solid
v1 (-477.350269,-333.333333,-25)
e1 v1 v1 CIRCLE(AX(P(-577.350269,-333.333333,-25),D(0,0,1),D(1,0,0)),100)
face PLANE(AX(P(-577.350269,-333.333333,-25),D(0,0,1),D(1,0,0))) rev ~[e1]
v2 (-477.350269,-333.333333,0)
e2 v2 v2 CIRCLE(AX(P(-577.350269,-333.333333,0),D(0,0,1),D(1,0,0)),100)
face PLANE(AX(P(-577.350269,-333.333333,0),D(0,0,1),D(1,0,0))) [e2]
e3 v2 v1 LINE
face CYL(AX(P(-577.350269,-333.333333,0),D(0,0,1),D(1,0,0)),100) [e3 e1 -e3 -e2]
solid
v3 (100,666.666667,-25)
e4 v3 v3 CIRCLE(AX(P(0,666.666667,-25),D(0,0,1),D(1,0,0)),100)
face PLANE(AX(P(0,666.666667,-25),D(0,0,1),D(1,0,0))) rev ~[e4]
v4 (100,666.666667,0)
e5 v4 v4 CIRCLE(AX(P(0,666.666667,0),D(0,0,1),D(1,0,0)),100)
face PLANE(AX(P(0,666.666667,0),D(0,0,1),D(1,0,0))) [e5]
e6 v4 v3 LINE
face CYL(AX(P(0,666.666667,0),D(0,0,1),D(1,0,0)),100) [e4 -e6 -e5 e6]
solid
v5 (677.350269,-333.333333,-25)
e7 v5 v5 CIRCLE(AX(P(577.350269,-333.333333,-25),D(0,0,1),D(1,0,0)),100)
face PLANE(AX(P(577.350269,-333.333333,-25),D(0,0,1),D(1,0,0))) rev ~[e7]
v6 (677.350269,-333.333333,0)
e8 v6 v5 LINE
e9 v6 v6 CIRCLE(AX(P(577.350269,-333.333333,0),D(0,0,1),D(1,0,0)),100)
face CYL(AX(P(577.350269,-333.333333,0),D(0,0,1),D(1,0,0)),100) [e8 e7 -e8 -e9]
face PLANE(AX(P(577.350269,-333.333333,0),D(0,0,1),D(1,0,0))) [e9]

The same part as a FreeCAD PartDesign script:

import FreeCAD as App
import Part
import Sketcher

V = App.Vector

doc = App.newDocument("Part")
body = doc.addObject("PartDesign::Body", "Body")
body.AllowCompound = True

# Sketch on XY plane
sketch1 = body.newObject("Sketcher::SketchObject", "Sketch")
sketch1.AttachmentSupport = (doc.getObject("XY_Plane"), [""])
sketch1.MapMode = "FlatFace"
sketch1.addGeometry([
    Part.Circle(V(0, 666.666667, 0), V(0, 0, 1), 100),
    Part.Circle(V(-577.350269, -333.333333, 0), V(0, 0, 1), 100),
    Part.Circle(V(577.350269, -333.333333, 0), V(0, 0, 1), 100),
], False)
sketch1.addConstraint([
    Sketcher.Constraint("Equal", 0, 1),
    Sketcher.Constraint("Equal", 1, 2),
    Sketcher.Constraint("Symmetric", 1, 3, 2, 3, -2),
    Sketcher.Constraint("PointOnObject", 0, 3, -2),
    Sketcher.Constraint("Diameter", 0, 200.0),
    Sketcher.Constraint("DistanceY", 1, 3, 0, 3, 1000.0),
    Sketcher.Constraint("DistanceX", 1, 3, -1, 1, 577.350269),
    Sketcher.Constraint("DistanceY", -1, 1, 0, 3, 666.666667),
])
pad1 = body.newObject("PartDesign::Pad", "Pad")
pad1.Profile = sketch1
pad1.Length = 25
pad1.Reversed = True

doc.recompute()
